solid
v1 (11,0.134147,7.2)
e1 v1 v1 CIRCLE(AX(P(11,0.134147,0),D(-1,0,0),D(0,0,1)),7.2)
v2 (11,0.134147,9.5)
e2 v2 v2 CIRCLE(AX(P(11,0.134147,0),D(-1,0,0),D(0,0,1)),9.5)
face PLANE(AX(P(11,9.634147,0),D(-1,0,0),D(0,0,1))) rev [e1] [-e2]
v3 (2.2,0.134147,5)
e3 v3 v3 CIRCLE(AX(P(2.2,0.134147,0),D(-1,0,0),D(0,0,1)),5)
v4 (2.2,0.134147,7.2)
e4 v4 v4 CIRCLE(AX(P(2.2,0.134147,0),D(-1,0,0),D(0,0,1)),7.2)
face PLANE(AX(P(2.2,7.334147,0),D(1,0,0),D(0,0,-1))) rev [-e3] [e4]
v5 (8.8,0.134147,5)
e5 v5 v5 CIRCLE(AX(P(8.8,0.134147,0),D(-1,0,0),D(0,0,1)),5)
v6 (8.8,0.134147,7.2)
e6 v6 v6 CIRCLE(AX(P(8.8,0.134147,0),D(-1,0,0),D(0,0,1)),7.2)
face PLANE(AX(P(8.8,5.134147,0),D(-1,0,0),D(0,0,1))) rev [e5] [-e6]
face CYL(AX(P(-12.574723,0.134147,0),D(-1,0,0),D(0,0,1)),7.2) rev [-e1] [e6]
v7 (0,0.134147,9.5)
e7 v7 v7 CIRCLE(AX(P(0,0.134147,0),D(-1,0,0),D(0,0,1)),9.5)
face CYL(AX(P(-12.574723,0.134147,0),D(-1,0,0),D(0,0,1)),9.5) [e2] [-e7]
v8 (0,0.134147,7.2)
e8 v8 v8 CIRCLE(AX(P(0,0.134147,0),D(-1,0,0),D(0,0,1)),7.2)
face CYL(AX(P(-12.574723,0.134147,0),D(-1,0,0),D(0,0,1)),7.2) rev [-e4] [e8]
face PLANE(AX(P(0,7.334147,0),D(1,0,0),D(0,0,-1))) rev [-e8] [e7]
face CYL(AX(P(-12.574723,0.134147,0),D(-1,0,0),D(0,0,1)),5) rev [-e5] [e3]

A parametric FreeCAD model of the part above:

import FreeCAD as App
import Part
import Sketcher

V = App.Vector

doc = App.newDocument("Part")
body = doc.addObject("PartDesign::Body", "Body")

# Sketch on XY plane
sketch1 = body.newObject("Sketcher::SketchObject", "Sketch")
sketch1.AttachmentSupport = (doc.getObject("XY_Plane"), [""])
sketch1.MapMode = "FlatFace"
sketch1.addGeometry(Part.LineSegment(V(0, 9.6, 0), V(0, 7.3, 0)), False)
sketch1.addGeometry(Part.LineSegment(V(0, 7.3, 0), V(2.2, 7.3, 0)), False)
sketch1.addGeometry(Part.LineSegment(V(2.2, 7.3, 0), V(2.2, 5.1, 0)), False)
sketch1.addGeometry(Part.LineSegment(V(2.2, 5.1, 0), V(8.8, 5.1, 0)), False)
sketch1.addGeometry(Part.LineSegment(V(8.8, 5.1, 0), V(8.8, 7.3, 0)), False)
sketch1.addGeometry(Part.LineSegment(V(8.8, 7.3, 0), V(11, 7.3, 0)), False)
sketch1.addGeometry(Part.LineSegment(V(11, 7.3, 0), V(11, 9.6, 0)), False)
sketch1.addGeometry(Part.LineSegment(V(11, 9.6, 0), V(0, 9.6, 0)), False)
sketch1.addGeometry(Part.LineSegment(V(0, 0.1, 0), V(11, 0.1, 0)), True)  # axis
sketch1.addConstraint(Sketcher.Constraint("Coincident", 0, 2, 1, 1))
sketch1.addConstraint(Sketcher.Constraint("Coincident", 1, 2, 2, 1))
sketch1.addConstraint(Sketcher.Constraint("Coincident", 2, 2, 3, 1))
sketch1.addConstraint(Sketcher.Constraint("Coincident", 3, 2, 4, 1))
sketch1.addConstraint(Sketcher.Constraint("Coincident", 4, 2, 5, 1))
sketch1.addConstraint(Sketcher.Constraint("Coincident", 5, 2, 6, 1))
sketch1.addConstraint(Sketcher.Constraint("Coincident", 6, 2, 7, 1))
sketch1.addConstraint(Sketcher.Constraint("Coincident", 7, 2, 0, 1))
sketch1.addConstraint(Sketcher.Constraint("Vertical", 0))
sketch1.addConstraint(Sketcher.Constraint("Horizontal", 1))
sketch1.addConstraint(Sketcher.Constraint("Vertical", 2))
sketch1.addConstraint(Sketcher.Constraint("Horizontal", 3))
sketch1.addConstraint(Sketcher.Constraint("Vertical", 4))
sketch1.addConstraint(Sketcher.Constraint("Horizontal", 5))
sketch1.addConstraint(Sketcher.Constraint("Vertical", 6))
sketch1.addConstraint(Sketcher.Constraint("Horizontal", 7))
sketch1.addConstraint(Sketcher.Constraint("Horizontal", 8))
sketch1.addConstraint(Sketcher.Constraint("PointOnObject", 0, 2, -2))
sketch1.addConstraint(Sketcher.Constraint("PointOnObject", 8, 1, -2))
sketch1.addConstraint(Sketcher.Constraint("Horizontal", 1, 2, 4, 2))
sketch1.addConstraint(Sketcher.Constraint("Vertical", 6, 2, 8, 2))
sketch1.addConstraint(Sketcher.Constraint("Equal", 1, 5))
sketch1.addConstraint(Sketcher.Constraint("Equal", 5, 2))
sketch1.addConstraint(Sketcher.Constraint("DistanceX", 7, 2, 7, 1, 11.0))
sketch1.addConstraint(Sketcher.Constraint("DistanceX", 1, 1, 1, 2, 2.2))
sketch1.addConstraint(Sketcher.Constraint("DistanceY", 0, 2, 0, 1, 2.3))
sketch1.addConstraint(Sketcher.Constraint("DistanceY", 8, 1, 2, 2, 5.0))
sketch1.addConstraint(Sketcher.Constraint("DistanceY", -1, 1, 0, 2, 7.334147))
revolution = body.newObject("PartDesign::Revolution", "Revolution")
revolution.Profile = sketch1
revolution.ReferenceAxis = (sketch1, ["Axis0"])
revolution.Angle = 360

doc.recompute()
